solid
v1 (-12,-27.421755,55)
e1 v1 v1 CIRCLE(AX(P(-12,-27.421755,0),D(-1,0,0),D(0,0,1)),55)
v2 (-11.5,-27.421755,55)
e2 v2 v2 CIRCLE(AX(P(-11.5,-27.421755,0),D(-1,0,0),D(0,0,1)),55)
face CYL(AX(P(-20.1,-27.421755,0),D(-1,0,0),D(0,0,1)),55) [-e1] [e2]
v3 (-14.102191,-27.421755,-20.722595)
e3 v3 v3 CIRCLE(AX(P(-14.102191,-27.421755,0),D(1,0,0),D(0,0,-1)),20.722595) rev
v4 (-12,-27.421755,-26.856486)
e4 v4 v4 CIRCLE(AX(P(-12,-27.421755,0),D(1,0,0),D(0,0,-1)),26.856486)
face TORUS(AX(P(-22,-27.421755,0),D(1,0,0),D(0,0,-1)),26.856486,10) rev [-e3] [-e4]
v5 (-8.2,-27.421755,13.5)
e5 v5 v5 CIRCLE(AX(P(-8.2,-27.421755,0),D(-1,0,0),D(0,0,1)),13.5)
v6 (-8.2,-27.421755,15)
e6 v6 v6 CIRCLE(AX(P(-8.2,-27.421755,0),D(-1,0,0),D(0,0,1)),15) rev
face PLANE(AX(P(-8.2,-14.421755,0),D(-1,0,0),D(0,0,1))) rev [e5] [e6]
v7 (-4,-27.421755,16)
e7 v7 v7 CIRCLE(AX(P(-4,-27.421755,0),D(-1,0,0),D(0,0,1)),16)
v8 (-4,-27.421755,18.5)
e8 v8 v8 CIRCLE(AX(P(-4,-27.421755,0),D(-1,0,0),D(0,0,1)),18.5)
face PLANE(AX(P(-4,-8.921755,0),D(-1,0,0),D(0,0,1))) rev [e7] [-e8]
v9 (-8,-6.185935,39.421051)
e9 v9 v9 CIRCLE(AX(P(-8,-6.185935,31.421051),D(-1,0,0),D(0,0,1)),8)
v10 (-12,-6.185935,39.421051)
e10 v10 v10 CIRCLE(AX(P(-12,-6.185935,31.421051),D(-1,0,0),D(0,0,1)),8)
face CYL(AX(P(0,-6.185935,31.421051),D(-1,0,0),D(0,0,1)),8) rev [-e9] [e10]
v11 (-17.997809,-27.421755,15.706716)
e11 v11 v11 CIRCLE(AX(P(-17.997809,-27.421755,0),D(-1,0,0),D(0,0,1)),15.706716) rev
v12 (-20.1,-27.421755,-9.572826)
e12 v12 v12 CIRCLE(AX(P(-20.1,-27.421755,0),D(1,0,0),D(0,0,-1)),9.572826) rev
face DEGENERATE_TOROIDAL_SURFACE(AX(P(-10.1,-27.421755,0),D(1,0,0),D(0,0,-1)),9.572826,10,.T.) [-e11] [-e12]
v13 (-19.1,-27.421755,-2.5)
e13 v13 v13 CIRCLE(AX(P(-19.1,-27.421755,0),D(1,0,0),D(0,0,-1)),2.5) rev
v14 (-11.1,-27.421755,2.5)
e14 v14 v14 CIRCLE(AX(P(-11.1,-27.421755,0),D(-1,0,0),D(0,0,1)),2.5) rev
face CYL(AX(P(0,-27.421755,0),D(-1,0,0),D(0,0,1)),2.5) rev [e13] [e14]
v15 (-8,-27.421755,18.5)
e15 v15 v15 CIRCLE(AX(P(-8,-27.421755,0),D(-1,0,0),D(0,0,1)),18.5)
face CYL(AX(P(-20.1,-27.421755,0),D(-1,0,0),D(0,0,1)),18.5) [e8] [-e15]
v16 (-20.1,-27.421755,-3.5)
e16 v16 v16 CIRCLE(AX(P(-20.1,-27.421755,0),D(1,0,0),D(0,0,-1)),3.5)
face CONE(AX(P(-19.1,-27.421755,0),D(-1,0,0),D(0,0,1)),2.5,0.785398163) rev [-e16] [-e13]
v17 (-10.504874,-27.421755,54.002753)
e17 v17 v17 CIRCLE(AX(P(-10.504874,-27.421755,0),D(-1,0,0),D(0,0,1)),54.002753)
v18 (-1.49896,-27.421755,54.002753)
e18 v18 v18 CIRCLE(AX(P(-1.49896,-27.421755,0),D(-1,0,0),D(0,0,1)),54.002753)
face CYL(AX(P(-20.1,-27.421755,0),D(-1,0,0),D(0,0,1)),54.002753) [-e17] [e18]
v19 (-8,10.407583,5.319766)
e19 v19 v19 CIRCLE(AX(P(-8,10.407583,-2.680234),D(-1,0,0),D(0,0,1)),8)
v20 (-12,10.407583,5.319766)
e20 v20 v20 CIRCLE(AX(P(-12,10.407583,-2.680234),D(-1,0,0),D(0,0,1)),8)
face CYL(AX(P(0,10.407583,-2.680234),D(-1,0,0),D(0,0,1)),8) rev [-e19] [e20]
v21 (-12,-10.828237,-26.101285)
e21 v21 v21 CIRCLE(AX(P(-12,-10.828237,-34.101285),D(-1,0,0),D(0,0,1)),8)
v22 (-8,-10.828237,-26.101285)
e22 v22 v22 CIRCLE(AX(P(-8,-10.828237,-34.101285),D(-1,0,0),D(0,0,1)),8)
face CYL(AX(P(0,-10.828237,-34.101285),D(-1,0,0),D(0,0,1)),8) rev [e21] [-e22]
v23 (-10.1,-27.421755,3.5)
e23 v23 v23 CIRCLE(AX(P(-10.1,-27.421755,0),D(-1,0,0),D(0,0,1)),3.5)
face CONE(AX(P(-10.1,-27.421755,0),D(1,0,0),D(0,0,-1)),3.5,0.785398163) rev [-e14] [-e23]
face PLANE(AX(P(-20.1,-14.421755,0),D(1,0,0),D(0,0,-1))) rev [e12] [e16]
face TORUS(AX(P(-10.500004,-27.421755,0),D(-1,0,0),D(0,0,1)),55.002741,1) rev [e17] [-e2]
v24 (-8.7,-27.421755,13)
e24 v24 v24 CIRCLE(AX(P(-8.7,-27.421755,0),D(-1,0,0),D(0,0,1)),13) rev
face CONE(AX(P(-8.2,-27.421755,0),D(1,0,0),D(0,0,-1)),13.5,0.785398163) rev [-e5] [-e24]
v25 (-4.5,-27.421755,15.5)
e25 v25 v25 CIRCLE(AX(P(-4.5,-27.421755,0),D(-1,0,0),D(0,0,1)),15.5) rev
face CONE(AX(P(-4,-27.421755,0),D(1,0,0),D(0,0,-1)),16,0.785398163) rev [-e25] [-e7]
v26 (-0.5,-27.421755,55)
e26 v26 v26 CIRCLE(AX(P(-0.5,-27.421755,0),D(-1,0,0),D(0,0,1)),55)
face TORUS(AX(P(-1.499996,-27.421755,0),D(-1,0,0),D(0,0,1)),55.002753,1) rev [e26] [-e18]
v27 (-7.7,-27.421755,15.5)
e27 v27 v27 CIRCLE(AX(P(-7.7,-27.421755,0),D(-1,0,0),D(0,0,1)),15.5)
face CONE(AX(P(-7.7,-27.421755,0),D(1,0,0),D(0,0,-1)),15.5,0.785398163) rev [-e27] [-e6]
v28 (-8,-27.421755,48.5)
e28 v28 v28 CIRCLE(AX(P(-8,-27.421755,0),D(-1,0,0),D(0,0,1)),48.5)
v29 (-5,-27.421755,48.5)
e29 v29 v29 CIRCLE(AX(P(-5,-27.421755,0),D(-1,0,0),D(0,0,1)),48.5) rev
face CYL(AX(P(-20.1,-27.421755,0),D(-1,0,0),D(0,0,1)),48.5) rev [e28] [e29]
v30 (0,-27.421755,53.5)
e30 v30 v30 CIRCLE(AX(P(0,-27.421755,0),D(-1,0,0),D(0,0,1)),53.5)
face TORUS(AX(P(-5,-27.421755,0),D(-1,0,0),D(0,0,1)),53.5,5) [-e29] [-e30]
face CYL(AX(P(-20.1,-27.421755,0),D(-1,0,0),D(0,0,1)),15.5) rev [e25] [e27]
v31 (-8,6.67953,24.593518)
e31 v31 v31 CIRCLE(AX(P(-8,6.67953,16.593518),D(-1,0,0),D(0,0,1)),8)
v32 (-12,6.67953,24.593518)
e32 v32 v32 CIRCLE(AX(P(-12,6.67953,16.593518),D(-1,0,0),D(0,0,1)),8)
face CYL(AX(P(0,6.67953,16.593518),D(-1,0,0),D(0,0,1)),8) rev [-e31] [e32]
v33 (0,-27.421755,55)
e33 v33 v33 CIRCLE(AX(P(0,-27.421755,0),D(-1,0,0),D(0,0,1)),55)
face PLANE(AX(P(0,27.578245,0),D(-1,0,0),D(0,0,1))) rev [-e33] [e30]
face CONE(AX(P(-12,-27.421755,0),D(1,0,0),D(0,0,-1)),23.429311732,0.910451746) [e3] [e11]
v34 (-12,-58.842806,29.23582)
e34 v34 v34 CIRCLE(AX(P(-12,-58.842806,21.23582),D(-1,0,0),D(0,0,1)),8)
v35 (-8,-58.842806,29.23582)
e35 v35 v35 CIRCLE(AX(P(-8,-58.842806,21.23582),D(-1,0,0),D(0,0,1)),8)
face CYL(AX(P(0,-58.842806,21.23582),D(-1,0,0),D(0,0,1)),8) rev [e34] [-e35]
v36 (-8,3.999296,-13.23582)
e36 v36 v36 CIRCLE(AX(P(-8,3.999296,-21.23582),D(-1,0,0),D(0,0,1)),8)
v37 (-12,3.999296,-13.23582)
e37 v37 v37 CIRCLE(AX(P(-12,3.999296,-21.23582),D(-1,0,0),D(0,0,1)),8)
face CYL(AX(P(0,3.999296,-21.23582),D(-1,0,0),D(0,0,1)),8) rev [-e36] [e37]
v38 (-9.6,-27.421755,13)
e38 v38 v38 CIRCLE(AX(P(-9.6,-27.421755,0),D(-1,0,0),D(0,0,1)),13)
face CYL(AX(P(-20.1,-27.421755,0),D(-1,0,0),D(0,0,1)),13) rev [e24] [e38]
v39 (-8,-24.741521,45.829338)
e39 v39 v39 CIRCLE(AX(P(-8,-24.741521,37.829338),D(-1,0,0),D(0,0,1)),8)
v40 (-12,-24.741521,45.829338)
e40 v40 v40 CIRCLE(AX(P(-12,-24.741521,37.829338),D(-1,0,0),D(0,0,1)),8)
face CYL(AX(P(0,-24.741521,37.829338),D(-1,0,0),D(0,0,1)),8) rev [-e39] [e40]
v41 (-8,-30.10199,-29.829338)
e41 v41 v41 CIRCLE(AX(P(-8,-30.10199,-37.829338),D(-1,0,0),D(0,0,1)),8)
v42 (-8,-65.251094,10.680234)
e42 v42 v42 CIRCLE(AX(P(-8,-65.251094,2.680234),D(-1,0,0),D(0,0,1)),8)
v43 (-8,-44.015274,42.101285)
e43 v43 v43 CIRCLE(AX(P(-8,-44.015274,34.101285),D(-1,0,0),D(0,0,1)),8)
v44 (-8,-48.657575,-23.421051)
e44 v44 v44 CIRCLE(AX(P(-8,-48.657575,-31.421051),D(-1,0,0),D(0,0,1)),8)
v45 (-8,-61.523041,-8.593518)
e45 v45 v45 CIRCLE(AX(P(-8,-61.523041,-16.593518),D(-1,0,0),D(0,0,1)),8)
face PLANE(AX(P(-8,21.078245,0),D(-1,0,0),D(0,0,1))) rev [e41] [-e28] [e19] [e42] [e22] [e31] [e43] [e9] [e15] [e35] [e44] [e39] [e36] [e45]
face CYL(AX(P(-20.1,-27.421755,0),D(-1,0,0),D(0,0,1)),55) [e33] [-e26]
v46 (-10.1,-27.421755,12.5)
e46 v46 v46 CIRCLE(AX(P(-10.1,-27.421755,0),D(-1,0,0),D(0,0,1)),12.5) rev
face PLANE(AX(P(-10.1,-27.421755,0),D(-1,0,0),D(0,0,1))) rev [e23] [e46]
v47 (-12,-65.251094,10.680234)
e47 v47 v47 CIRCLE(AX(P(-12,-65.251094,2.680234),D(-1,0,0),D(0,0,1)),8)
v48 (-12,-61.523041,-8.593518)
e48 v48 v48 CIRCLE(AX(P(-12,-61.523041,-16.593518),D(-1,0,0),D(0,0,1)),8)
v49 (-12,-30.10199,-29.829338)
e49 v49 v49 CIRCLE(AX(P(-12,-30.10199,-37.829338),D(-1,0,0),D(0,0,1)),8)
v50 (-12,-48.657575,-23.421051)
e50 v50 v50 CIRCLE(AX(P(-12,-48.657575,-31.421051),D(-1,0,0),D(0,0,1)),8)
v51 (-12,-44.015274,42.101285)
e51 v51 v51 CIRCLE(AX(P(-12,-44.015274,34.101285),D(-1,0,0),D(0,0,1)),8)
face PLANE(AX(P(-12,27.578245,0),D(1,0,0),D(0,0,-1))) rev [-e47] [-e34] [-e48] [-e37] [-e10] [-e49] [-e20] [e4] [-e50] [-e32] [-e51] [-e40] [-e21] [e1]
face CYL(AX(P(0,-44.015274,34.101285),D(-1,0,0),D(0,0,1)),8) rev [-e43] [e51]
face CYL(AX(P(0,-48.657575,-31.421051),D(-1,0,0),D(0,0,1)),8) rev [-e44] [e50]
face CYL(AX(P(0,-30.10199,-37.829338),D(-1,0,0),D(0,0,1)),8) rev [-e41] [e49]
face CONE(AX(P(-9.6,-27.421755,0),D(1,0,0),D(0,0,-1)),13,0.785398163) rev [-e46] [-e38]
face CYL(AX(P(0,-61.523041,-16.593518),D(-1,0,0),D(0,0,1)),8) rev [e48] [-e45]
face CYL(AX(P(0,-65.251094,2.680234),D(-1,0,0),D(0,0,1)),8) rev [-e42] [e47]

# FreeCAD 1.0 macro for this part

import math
import FreeCAD as App
import Part
import Sketcher

V = App.Vector


def edges_at(feature, points):
    """Names of the edges that pass closest to the given points."""
    edges = feature.Shape.Edges
    near = lambda p: min(range(len(edges)), key=lambda i: edges[i].distToShape(Part.Vertex(*p))[0])
    return sorted({f"Edge{near(p) + 1}" for p in points})

doc = App.newDocument("Part")
params = doc.addObject("Spreadsheet::Sheet", "Params")
for row, (alias, value) in enumerate([
    ("sketch1_radius", "1 mm"),
    ("sketch1_width", "10 mm"),
    ("sketch1_width2", "4 mm"),
    ("sketch1_width3", "8 mm"),
    ("sketch1_height", "13 mm"),
    ("revolution_angle", "360 deg"),
    ("sketch2_diameter", "5 mm"),
    ("fillet_radius", "10 mm"),
    ("fillet2_radius", "5 mm"),
    ("chamfer_size", "1 mm"),
    ("chamfer2_size", "0.5 mm"),
    ("chamfer3_size", "0.5 mm"),
    ("sketch3_diameter", "16 mm"),
], start=1):
    params.set(f"A{row}", alias)
    params.set(f"B{row}", "=" + value)
    params.setAlias(f"B{row}", alias)

body = doc.addObject("PartDesign::Body", "Body")

# Sketch on XY plane
sketch1 = body.newObject("Sketcher::SketchObject", "Sketch")
sketch1.AttachmentSupport = (doc.getObject("XY_Plane"), [""])
sketch1.MapMode = "FlatFace"
sketch1.addGeometry(Part.LineSegment(V(0, 21.078245, 0), V(0, 27.578245, 0)), False)
sketch1.addGeometry(Part.LineSegment(V(0, 27.578245, 0), V(-0.5, 27.578245, 0)), False)
sketch1.addGeometry(Part.ArcOfCircle(Part.Circle(V(-1.499996, 27.580998, 0), V(0, 0, 1), 1), math.radians(-89.940606), math.radians(-0.157724)), False)
sketch1.addGeometry(Part.LineSegment(V(-1.49896, 26.580998, 0), V(-10.504874, 26.580998, 0)), False)
sketch1.addGeometry(Part.ArcOfCircle(Part.Circle(V(-10.500004, 27.580986, 0), V(0, 0, 1), 1), math.radians(-179.842925), math.radians(-90.279062)), False)
sketch1.addGeometry(Part.LineSegment(V(-11.5, 27.578245, 0), V(-12, 27.578245, 0)), False)
sketch1.addGeometry(Part.LineSegment(V(-12, 27.578245, 0), V(-12, -3.992444, 0)), False)
sketch1.addGeometry(Part.LineSegment(V(-12, -3.992444, 0), V(-20.1, -14.421755, 0)), False)
sketch1.addGeometry(Part.LineSegment(V(-20.1, -14.421755, 0), V(-20.1, -27.421755, 0)), False)
sketch1.addGeometry(Part.LineSegment(V(-20.1, -27.421755, 0), V(-10.1, -27.421755, 0)), False)
sketch1.addGeometry(Part.LineSegment(V(-10.1, -27.421755, 0), V(-10.1, -14.421755, 0)), False)
sketch1.addGeometry(Part.LineSegment(V(-10.1, -14.421755, 0), V(-8.2, -14.421755, 0)), False)
sketch1.addGeometry(Part.LineSegment(V(-8.2, -14.421755, 0), V(-8.2, -11.921755, 0)), False)
sketch1.addGeometry(Part.LineSegment(V(-8.2, -11.921755, 0), V(-4, -11.921755, 0)), False)
sketch1.addGeometry(Part.LineSegment(V(-4, -11.921755, 0), V(-4, -8.921755, 0)), False)
sketch1.addGeometry(Part.LineSegment(V(-4, -8.921755, 0), V(-8, -8.921755, 0)), False)
sketch1.addGeometry(Part.LineSegment(V(-8, -8.921755, 0), V(-8, 21.078245, 0)), False)
sketch1.addGeometry(Part.LineSegment(V(-8, 21.078245, 0), V(0, 21.078245, 0)), False)
sketch1.addGeometry(Part.LineSegment(V(-20.1, -27.421755, 0), V(0, -27.421755, 0)), True)  # axis
sketch1.addConstraint(Sketcher.Constraint("Coincident", 0, 2, 1, 1))
sketch1.addConstraint(Sketcher.Constraint("Coincident", 1, 2, 2, 2))
sketch1.addConstraint(Sketcher.Constraint("Coincident", 2, 1, 3, 1))
sketch1.addConstraint(Sketcher.Constraint("Coincident", 3, 2, 4, 2))
sketch1.addConstraint(Sketcher.Constraint("Coincident", 4, 1, 5, 1))
sketch1.addConstraint(Sketcher.Constraint("Coincident", 5, 2, 6, 1))
sketch1.addConstraint(Sketcher.Constraint("Coincident", 6, 2, 7, 1))
sketch1.addConstraint(Sketcher.Constraint("Coincident", 7, 2, 8, 1))
sketch1.addConstraint(Sketcher.Constraint("Coincident", 8, 2, 9, 1))
sketch1.addConstraint(Sketcher.Constraint("Coincident", 9, 2, 10, 1))
sketch1.addConstraint(Sketcher.Constraint("Coincident", 10, 2, 11, 1))
sketch1.addConstraint(Sketcher.Constraint("Coincident", 11, 2, 12, 1))
sketch1.addConstraint(Sketcher.Constraint("Coincident", 12, 2, 13, 1))
sketch1.addConstraint(Sketcher.Constraint("Coincident", 13, 2, 14, 1))
sketch1.addConstraint(Sketcher.Constraint("Coincident", 14, 2, 15, 1))
sketch1.addConstraint(Sketcher.Constraint("Coincident", 15, 2, 16, 1))
sketch1.addConstraint(Sketcher.Constraint("Coincident", 16, 2, 17, 1))
sketch1.addConstraint(Sketcher.Constraint("Coincident", 17, 2, 0, 1))
sketch1.addConstraint(Sketcher.Constraint("Vertical", 0))
sketch1.addConstraint(Sketcher.Constraint("Horizontal", 1))
sketch1.addConstraint(Sketcher.Constraint("Horizontal", 3))
sketch1.addConstraint(Sketcher.Constraint("Horizontal", 5))
sketch1.addConstraint(Sketcher.Constraint("Vertical", 6))
sketch1.addConstraint(Sketcher.Constraint("Vertical", 8))
sketch1.addConstraint(Sketcher.Constraint("Horizontal", 9))
sketch1.addConstraint(Sketcher.Constraint("Vertical", 10))
sketch1.addConstraint(Sketcher.Constraint("Horizontal", 11))
sketch1.addConstraint(Sketcher.Constraint("Vertical", 12))
sketch1.addConstraint(Sketcher.Constraint("Horizontal", 13))
sketch1.addConstraint(Sketcher.Constraint("Vertical", 14))
sketch1.addConstraint(Sketcher.Constraint("Horizontal", 15))
sketch1.addConstraint(Sketcher.Constraint("Vertical", 16))
sketch1.addConstraint(Sketcher.Constraint("Horizontal", 17))
sketch1.addConstraint(Sketcher.Constraint("Horizontal", 18))
sketch1.addConstraint(Sketcher.Constraint("Coincident", 18, 1, 8, 2))
sketch1.addConstraint(Sketcher.Constraint("Equal", 2, 4))
sketch1.addConstraint(Sketcher.Constraint("PointOnObject", 0, 2, -2))
sketch1.addConstraint(Sketcher.Constraint("PointOnObject", 18, 2, -2))
sketch1.addConstraint(Sketcher.Constraint("Horizontal", 1, 2, 4, 1))
sketch1.addConstraint(Sketcher.Constraint("Horizontal", 7, 2, 10, 2))
sketch1.addConstraint(Sketcher.Constraint("Equal", 1, 5))
sketch1.addConstraint(Sketcher.Constraint("Radius", 2, 1.0))
sketch1.addConstraint(Sketcher.Constraint("DistanceX", 9, 1, 9, 2, 10.0))
sketch1.addConstraint(Sketcher.Constraint("DistanceX", 15, 2, 15, 1, 4.0))
sketch1.addConstraint(Sketcher.Constraint("DistanceX", 17, 1, 17, 2, 8.0))
sketch1.addConstraint(Sketcher.Constraint("DistanceY", 8, 2, 8, 1, 13.0))
sketch1.addConstraint(Sketcher.Constraint("DistanceY", 14, 1, 14, 2, 3.0))
sketch1.addConstraint(Sketcher.Constraint("DistanceY", 16, 1, 16, 2, 30.0))
sketch1.addConstraint(Sketcher.Constraint("DistanceX", 1, 2, 1, 1, 0.5))
sketch1.addConstraint(Sketcher.Constraint("DistanceX", 11, 1, 11, 2, 1.9))
sketch1.addConstraint(Sketcher.Constraint("DistanceX", 13, 1, 13, 2, 4.2))
sketch1.addConstraint(Sketcher.Constraint("DistanceY", 0, 1, 0, 2, 6.5))
sketch1.addConstraint(Sketcher.Constraint("DistanceY", 12, 1, 12, 2, 2.5))
sketch1.addConstraint(Sketcher.Constraint("DistanceX", 5, 2, -1, 1, 12.0))
sketch1.addConstraint(Sketcher.Constraint("DistanceY", -1, 1, 2, 1, 26.580998))
sketch1.addConstraint(Sketcher.Constraint("DistanceY", 6, 2, 6, 1, 31.570688))
sketch1.addConstraint(Sketcher.Constraint("DistanceX", 3, 2, 3, 1, 9.005915))
sketch1.addConstraint(Sketcher.Constraint("DistanceX", 2, 1, -1, 1, 1.49896))
sketch1.addConstraint(Sketcher.Constraint("DistanceY", 0, 2, 4, 3, 0.002741))
sketch1.setExpression("Constraints[41]", "Params.sketch1_radius")
sketch1.setExpression("Constraints[42]", "Params.sketch1_width")
sketch1.setExpression("Constraints[43]", "Params.sketch1_width2")
sketch1.setExpression("Constraints[44]", "Params.sketch1_width3")
sketch1.setExpression("Constraints[45]", "Params.sketch1_height")
revolution = body.newObject("PartDesign::Revolution", "Revolution")
revolution.Profile = sketch1
revolution.ReferenceAxis = (sketch1, ["Axis0"])
revolution.setExpression("Angle", "Params.revolution_angle")

# Sketch on YZ plane
sketch2 = body.newObject("Sketcher::SketchObject", "Sketch001")
sketch2.AttachmentSupport = (doc.getObject("YZ_Plane"), [""])
sketch2.MapMode = "FlatFace"
sketch2.AttachmentOffset = App.Placement(V(0, 0, -20.1), App.Rotation())
sketch2.addGeometry(Part.Circle(V(-27.421755, 0, 0), V(0, 0, 1), 2.5), False)
sketch2.addConstraint(Sketcher.Constraint("PointOnObject", 0, 3, -1))
sketch2.addConstraint(Sketcher.Constraint("Diameter", 0, 5.0))
sketch2.addConstraint(Sketcher.Constraint("DistanceX", 0, 3, -1, 1, 27.421755))
sketch2.setExpression("Constraints[1]", "Params.sketch2_diameter")
pocket1 = body.newObject("PartDesign::Pocket", "Pocket")
pocket1.Profile = sketch2
pocket1.Type = "ThroughAll"
pocket1.Reversed = True
doc.recompute()

fillet = body.newObject("PartDesign::Fillet", "Fillet")
fillet.Base = (pocket1, edges_at(pocket1, [(-20.1, -27.422, -13), (-12, -27.422, -23.429)]))
fillet.setExpression("Radius", "Params.fillet_radius")
doc.recompute()

fillet2 = body.newObject("PartDesign::Fillet", "Fillet001")
fillet2.Base = (fillet, edges_at(fillet, [(0, -27.422, -48.5)]))
fillet2.setExpression("Radius", "Params.fillet2_radius")
doc.recompute()

chamfer = body.newObject("PartDesign::Chamfer", "Chamfer")
chamfer.Base = (fillet2, edges_at(fillet2, [(-10.1, -27.422, -2.5), (-20.1, -27.422, -2.5)]))
chamfer.setExpression("Size", "Params.chamfer_size")
doc.recompute()

chamfer2 = body.newObject("PartDesign::Chamfer", "Chamfer001")
chamfer2.Base = (chamfer, edges_at(chamfer, [(-8.2, -27.422, -13), (-10.1, -27.422, -13)]))
chamfer2.setExpression("Size", "Params.chamfer2_size")
doc.recompute()

chamfer3 = body.newObject("PartDesign::Chamfer", "Chamfer002")
chamfer3.Base = (chamfer2, edges_at(chamfer2, [(-4, -27.422, -15.5), (-8.2, -27.422, -15.5)]))
chamfer3.setExpression("Size", "Params.chamfer3_size")

# Sketch on YZ plane
sketch3 = body.newObject("Sketcher::SketchObject", "Sketch002")
sketch3.AttachmentSupport = (doc.getObject("YZ_Plane"), [""])
sketch3.MapMode = "FlatFace"
sketch3.AttachmentOffset = App.Placement(V(0, 0, -12), App.Rotation())
sketch3.addGeometry(Part.Circle(V(-24.741521, 37.829338, 0), V(0, 0, 1), 8), False)
sketch3.addGeometry(Part.Circle(V(-44.015274, 34.101285, 0), V(0, 0, 1), 8), False)
sketch3.addGeometry(Part.Circle(V(-58.842806, 21.23582, 0), V(0, 0, 1), 8), False)
sketch3.addGeometry(Part.Circle(V(-65.251094, 2.680234, 0), V(0, 0, 1), 8), False)
sketch3.addGeometry(Part.Circle(V(-61.523041, -16.593518, 0), V(0, 0, 1), 8), False)
sketch3.addGeometry(Part.Circle(V(-48.657575, -31.421051, 0), V(0, 0, 1), 8), False)
sketch3.addGeometry(Part.Circle(V(-30.10199, -37.829338, 0), V(0, 0, 1), 8), False)
sketch3.addGeometry(Part.Circle(V(-10.828237, -34.101285, 0), V(0, 0, 1), 8), False)
sketch3.addGeometry(Part.Circle(V(3.999296, -21.23582, 0), V(0, 0, 1), 8), False)
sketch3.addGeometry(Part.Circle(V(10.407583, -2.680234, 0), V(0, 0, 1), 8), False)
sketch3.addGeometry(Part.Circle(V(6.67953, 16.593518, 0), V(0, 0, 1), 8), False)
sketch3.addGeometry(Part.Circle(V(-6.185935, 31.421051, 0), V(0, 0, 1), 8), False)
sketch3.addConstraint(Sketcher.Constraint("Equal", 0, 1))
sketch3.addConstraint(Sketcher.Constraint("Equal", 1, 2))
sketch3.addConstraint(Sketcher.Constraint("Equal", 2, 3))
sketch3.addConstraint(Sketcher.Constraint("Equal", 3, 4))
sketch3.addConstraint(Sketcher.Constraint("Equal", 4, 5))
sketch3.addConstraint(Sketcher.Constraint("Equal", 5, 6))
sketch3.addConstraint(Sketcher.Constraint("Equal", 6, 7))
sketch3.addConstraint(Sketcher.Constraint("Equal", 7, 8))
sketch3.addConstraint(Sketcher.Constraint("Equal", 8, 9))
sketch3.addConstraint(Sketcher.Constraint("Equal", 9, 10))
sketch3.addConstraint(Sketcher.Constraint("Equal", 10, 11))
sketch3.addConstraint(Sketcher.Constraint("Diameter", 0, 16.0))
sketch3.addConstraint(Sketcher.Constraint("DistanceX", 5, 3, 1, 3, 4.642302))
sketch3.addConstraint(Sketcher.Constraint("DistanceY", 8, 3, 4, 3, 4.642302))
sketch3.addConstraint(Sketcher.Constraint("DistanceX", 0, 3, -1, 1, 24.741521))
sketch3.addConstraint(Sketcher.Constraint("DistanceY", -1, 1, 0, 3, 37.829338))
sketch3.addConstraint(Sketcher.Constraint("DistanceY", -1, 1, 2, 3, 21.23582))
sketch3.addConstraint(Sketcher.Constraint("DistanceX", 4, 3, -1, 1, 61.523041))
sketch3.addConstraint(Sketcher.Constraint("DistanceY", 4, 3, -1, 1, 16.593518))
sketch3.addConstraint(Sketcher.Constraint("DistanceY", 5, 3, -1, 1, 31.421051))
sketch3.addConstraint(Sketcher.Constraint("DistanceX", 6, 3, -1, 1, 30.10199))
sketch3.addConstraint(Sketcher.Constraint("DistanceY", 6, 3, -1, 1, 37.829338))
sketch3.addConstraint(Sketcher.Constraint("DistanceX", -1, 1, 10, 3, 6.67953))
sketch3.addConstraint(Sketcher.Constraint("DistanceY", -1, 1, 10, 3, 16.593518))
sketch3.addConstraint(Sketcher.Constraint("DistanceY", -1, 1, 11, 3, 31.421051))
sketch3.addConstraint(Sketcher.Constraint("DistanceX", 3, 3, 1, 3, 21.23582))
sketch3.addConstraint(Sketcher.Constraint("DistanceY", 3, 3, 1, 3, 31.421051))
sketch3.addConstraint(Sketcher.Constraint("DistanceX", 2, 3, 5, 3, 10.185231))
sketch3.addConstraint(Sketcher.Constraint("DistanceX", 5, 3, 7, 3, 37.829338))
sketch3.addConstraint(Sketcher.Constraint("DistanceY", 7, 3, 3, 3, 36.78152))
sketch3.addConstraint(Sketcher.Constraint("DistanceX", 5, 3, 8, 3, 52.656871))
sketch3.addConstraint(Sketcher.Constraint("DistanceX", 7, 3, 9, 3, 21.23582))
sketch3.addConstraint(Sketcher.Constraint("DistanceY", 7, 3, 9, 3, 31.421051))
sketch3.addConstraint(Sketcher.Constraint("DistanceX", 1, 3, 11, 3, 37.829338))
sketch3.addConstraint(Sketcher.Constraint("DistanceX", 1, 3, -1, 1, 44.015274))
sketch3.addConstraint(Sketcher.Constraint("DistanceY", -1, 1, 1, 3, 34.101285))
sketch3.setExpression("Constraints[11]", "Params.sketch3_diameter")
pocket2 = body.newObject("PartDesign::Pocket", "Pocket001")
pocket2.Profile = sketch3
pocket2.Type = "ThroughAll"
pocket2.Reversed = True

doc.recompute()
